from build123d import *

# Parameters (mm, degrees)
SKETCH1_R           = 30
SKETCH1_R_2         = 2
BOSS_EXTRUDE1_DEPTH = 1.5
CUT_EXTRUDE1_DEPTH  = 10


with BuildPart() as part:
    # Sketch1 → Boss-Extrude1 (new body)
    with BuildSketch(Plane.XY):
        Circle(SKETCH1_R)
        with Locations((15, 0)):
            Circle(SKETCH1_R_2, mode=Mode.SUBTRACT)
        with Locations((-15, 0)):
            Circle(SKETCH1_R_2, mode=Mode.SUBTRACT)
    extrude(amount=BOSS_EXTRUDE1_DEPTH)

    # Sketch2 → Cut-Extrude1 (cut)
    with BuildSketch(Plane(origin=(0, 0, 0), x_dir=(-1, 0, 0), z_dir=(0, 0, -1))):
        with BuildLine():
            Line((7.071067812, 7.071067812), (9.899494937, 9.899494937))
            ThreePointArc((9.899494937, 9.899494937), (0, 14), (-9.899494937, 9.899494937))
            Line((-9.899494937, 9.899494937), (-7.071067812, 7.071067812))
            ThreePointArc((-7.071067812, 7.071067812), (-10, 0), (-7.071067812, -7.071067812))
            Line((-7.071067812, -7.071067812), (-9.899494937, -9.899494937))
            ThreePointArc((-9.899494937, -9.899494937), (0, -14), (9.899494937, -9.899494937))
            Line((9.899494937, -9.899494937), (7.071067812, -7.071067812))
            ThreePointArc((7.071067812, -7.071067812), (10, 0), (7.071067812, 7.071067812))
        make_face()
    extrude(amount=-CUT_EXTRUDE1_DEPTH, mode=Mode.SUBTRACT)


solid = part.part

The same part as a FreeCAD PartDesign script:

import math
import FreeCAD as App
import Part
import Sketcher
Q = App.Units.Quantity

doc = App.newDocument("Part")
params = doc.addObject("Spreadsheet::Sheet", "Params")
for row, (alias, value) in enumerate([
    ("sketch1_diameter", "60 mm"),
    ("sketch1_diameter2", "4 mm"),
    ("pad1_length", "1.5 mm"),
    ("sketch2_radius", "14 mm"),
    ("sketch2_radius2", "10 mm"),
    ("pocket1_length", "10 mm"),
], start=1):
    params.set(f"A{row}", alias)
    params.set(f"B{row}", "=" + value)
    params.setAlias(f"B{row}", alias)

body = doc.addObject("PartDesign::Body", "Body")

# Sketch on XY plane
sketch1 = doc.addObject("Sketcher::SketchObject", "Sketch")
body.addObject(sketch1)
sketch1.AttachmentSupport = (doc.XY_Plane, [""])
sketch1.MapMode = "FlatFace"
sketch1.addGeometry([
    Part.Circle(App.Vector(0, 0, 0), App.Vector(0, 0, 1), 30),
    Part.Circle(App.Vector(-15, 0, 0), App.Vector(0, 0, 1), 2),
    Part.Circle(App.Vector(15, 0, 0), App.Vector(0, 0, 1), 2),
], False)
sketch1.addConstraint([
    Sketcher.Constraint("Coincident", 0, 3, -1, 1),
    Sketcher.Constraint("Equal", 1, 2),
    Sketcher.Constraint("Symmetric", 1, 3, 2, 3, -1, 1),
    Sketcher.Constraint("PointOnObject", 1, 3, -1),
    Sketcher.Constraint("Diameter", 0, Q("60 mm")),
    Sketcher.Constraint("Diameter", 1, Q("4 mm")),
    Sketcher.Constraint("DistanceX", 1, 3, -1, 1, Q("15 mm")),
])
sketch1.setExpression("Constraints[4]", "Params.sketch1_diameter")
sketch1.setExpression("Constraints[5]", "Params.sketch1_diameter2")
pad1 = doc.addObject("PartDesign::Pad", "Pad")
body.addObject(pad1)
pad1.Profile = sketch1
pad1.setExpression("Length", "Params.pad1_length")

# Sketch on XY plane
sketch2 = doc.addObject("Sketcher::SketchObject", "Sketch001")
body.addObject(sketch2)
sketch2.AttachmentSupport = (doc.XY_Plane, [""])
sketch2.MapMode = "FlatFace"
sketch2.addGeometry([
    Part.LineSegment(App.Vector(-7.1, 7.1, 0), App.Vector(-9.9, 9.9, 0)),  # 0
    Part.ArcOfCircle(Part.Circle(App.Vector(0, 0, 0), App.Vector(0, 0, 1), 14), math.radians(45), math.radians(135)),  # 1
    Part.LineSegment(App.Vector(9.9, 9.9, 0), App.Vector(7.1, 7.1, 0)),  # 2
    Part.ArcOfCircle(Part.Circle(App.Vector(0, 0, 0), App.Vector(0, 0, 1), 10), math.radians(-45), math.radians(45)),  # 3
    Part.LineSegment(App.Vector(7.1, -7.1, 0), App.Vector(9.9, -9.9, 0)),  # 4
    Part.ArcOfCircle(Part.Circle(App.Vector(0, 0, 0), App.Vector(0, 0, 1), 14), math.radians(-135), math.radians(-45)),  # 5
    Part.LineSegment(App.Vector(-9.9, -9.9, 0), App.Vector(-7.1, -7.1, 0)),  # 6
    Part.ArcOfCircle(Part.Circle(App.Vector(0, 0, 0), App.Vector(0, 0, 1), 10), math.radians(135), math.radians(225)),  # 7
], False)
sketch2.addConstraint([
    Sketcher.Constraint("Coincident", 0, 2, 1, 2),
    Sketcher.Constraint("Coincident", 1, 1, 2, 1),
    Sketcher.Constraint("Coincident", 2, 2, 3, 2),
    Sketcher.Constraint("Coincident", 3, 1, 4, 1),
    Sketcher.Constraint("Coincident", 4, 2, 5, 2),
    Sketcher.Constraint("Coincident", 5, 1, 6, 1),
    Sketcher.Constraint("Coincident", 6, 2, 7, 2),
    Sketcher.Constraint("Coincident", 7, 1, 0, 1),
    Sketcher.Constraint("Coincident", 1, 3, -1, 1),
    Sketcher.Constraint("Coincident", 3, 3, -1, 1),
    Sketcher.Constraint("Coincident", 5, 3, -1, 1),
    Sketcher.Constraint("Coincident", 7, 3, -1, 1),
    Sketcher.Constraint("Equal", 1, 5),
    Sketcher.Constraint("Equal", 3, 7),
    Sketcher.Constraint("Perpendicular", 0, 2),
    Sketcher.Constraint("Perpendicular", 2, 4),
    Sketcher.Constraint("Perpendicular", 4, 6),
    Sketcher.Constraint("Horizontal", 0, 2, 1, 1),
    Sketcher.Constraint("Horizontal", 4, 2, 5, 1),
    Sketcher.Constraint("Horizontal", 3, 1, 6, 2),
    Sketcher.Constraint("Vertical", 2, 2, 3, 1),
    Sketcher.Constraint("Radius", 1, Q("14 mm")),
    Sketcher.Constraint("Radius", 3, Q("10 mm")),
    Sketcher.Constraint("DistanceX", 0, 2, 1, 1, Q("19.79899 mm")),
])
sketch2.setExpression("Constraints[21]", "Params.sketch2_radius")
sketch2.setExpression("Constraints[22]", "Params.sketch2_radius2")
pocket1 = doc.addObject("PartDesign::Pocket", "Pocket")
body.addObject(pocket1)
pocket1.Profile = sketch2
pocket1.setExpression("Length", "Params.pocket1_length")
pocket1.Reversed = True

doc.recompute()
